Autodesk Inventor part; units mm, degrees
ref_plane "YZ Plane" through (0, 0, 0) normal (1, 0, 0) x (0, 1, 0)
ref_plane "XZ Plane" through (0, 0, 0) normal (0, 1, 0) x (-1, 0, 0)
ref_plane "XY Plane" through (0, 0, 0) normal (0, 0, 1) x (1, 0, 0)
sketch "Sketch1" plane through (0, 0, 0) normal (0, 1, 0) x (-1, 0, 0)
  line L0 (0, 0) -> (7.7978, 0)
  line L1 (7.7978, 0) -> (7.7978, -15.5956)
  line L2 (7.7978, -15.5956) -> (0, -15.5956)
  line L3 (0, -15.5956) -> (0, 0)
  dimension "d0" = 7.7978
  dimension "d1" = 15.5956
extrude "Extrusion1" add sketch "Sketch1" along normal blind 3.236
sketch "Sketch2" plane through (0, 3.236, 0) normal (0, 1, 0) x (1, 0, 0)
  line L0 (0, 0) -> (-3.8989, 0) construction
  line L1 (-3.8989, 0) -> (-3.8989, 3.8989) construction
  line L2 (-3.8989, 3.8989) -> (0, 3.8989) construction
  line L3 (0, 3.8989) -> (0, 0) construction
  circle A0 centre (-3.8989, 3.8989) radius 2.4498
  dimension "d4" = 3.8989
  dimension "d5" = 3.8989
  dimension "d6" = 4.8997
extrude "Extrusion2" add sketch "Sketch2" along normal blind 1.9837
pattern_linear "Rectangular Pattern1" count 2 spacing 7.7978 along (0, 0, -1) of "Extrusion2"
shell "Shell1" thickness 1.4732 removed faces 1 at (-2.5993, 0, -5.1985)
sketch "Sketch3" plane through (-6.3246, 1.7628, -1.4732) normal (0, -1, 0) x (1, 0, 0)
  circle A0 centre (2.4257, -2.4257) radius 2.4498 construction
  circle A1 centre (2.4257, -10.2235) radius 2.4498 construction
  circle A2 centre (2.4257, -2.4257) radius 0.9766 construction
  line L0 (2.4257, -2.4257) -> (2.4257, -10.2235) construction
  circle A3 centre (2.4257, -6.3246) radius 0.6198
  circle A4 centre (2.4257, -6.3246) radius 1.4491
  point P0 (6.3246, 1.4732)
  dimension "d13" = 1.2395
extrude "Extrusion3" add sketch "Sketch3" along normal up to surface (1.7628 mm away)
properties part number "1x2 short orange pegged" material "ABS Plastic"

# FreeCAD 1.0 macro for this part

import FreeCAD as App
import Part
import Sketcher

V = App.Vector
Q = App.Units.Quantity


def faces_at(feature, points):
    """Names of the faces that lie closest to the given points."""
    faces = feature.Shape.Faces
    near = lambda p: min(range(len(faces)), key=lambda i: faces[i].distToShape(Part.Vertex(*p))[0])
    return sorted({f"Face{near(p) + 1}" for p in points})

doc = App.newDocument("Part")
body = doc.addObject("PartDesign::Body", "Body")

sketch1 = body.newObject("Sketcher::SketchObject", "Sketch")
sketch1.AttachmentSupport = (doc.getObject("XZ_Plane"), [""])
sketch1.MapMode = "FlatFace"
sketch1.addGeometry([
    Part.LineSegment(V(-7.7978, 0, 0), V(0, 0, 0)),
    Part.LineSegment(V(0, 0, 0), V(0, -15.5956, 0)),
    Part.LineSegment(V(0, -15.5956, 0), V(-7.7978, -15.5956, 0)),
    Part.LineSegment(V(-7.7978, -15.5956, 0), V(-7.7978, 0, 0)),
], False)
sketch1.addConstraint([
    Sketcher.Constraint("Coincident", 0, 2, 1, 1),
    Sketcher.Constraint("Coincident", 1, 2, 2, 1),
    Sketcher.Constraint("Coincident", 2, 2, 3, 1),
    Sketcher.Constraint("Coincident", 3, 2, 0, 1),
    Sketcher.Constraint("Horizontal", 0),
    Sketcher.Constraint("Vertical", 1),
    Sketcher.Constraint("Horizontal", 2),
    Sketcher.Constraint("Vertical", 3),
    Sketcher.Constraint("Coincident", 0, 2, -1, 1),
    Sketcher.Constraint("DistanceX", 0, 1, 0, 2, Q("0.307 in")),
    Sketcher.Constraint("DistanceY", 1, 2, 1, 1, Q("0.614 in")),
])
pad1 = body.newObject("PartDesign::Pad", "Pad")
pad1.Profile = sketch1
pad1.Length = Q("0.1274016 in")
pad1.Reversed = True

sketch2 = body.newObject("Sketcher::SketchObject", "Sketch001")
sketch2.AttachmentSupport = (doc.getObject("XZ_Plane"), [""])
sketch2.MapMode = "FlatFace"
sketch2.AttachmentOffset = App.Placement(V(0, 0, -0.1274016 * 25.4), App.Rotation())
sketch2.addGeometry(Part.Circle(V(-3.8989, -3.8989, 0), V(0, 0, 1), 2.4498), False)
sketch2.addConstraint([
    Sketcher.Constraint("Diameter", 0, Q("0.1929 in")),
    Sketcher.Constraint("DistanceX", 0, 3, -1, 1, Q("0.1535 in")),
    Sketcher.Constraint("DistanceY", 0, 3, -1, 1, Q("0.1535 in")),
])
pad2 = body.newObject("PartDesign::Pad", "Pad001")
pad2.Profile = sketch2
pad2.Length = Q("0.0780984 in")
pad2.Reversed = True
doc.recompute()

linearpattern = body.newObject("PartDesign::LinearPattern", "LinearPattern")
linearpattern.Originals = [pad2]
linearpattern.Direction = (doc.getObject("Z_Axis"), [""])
linearpattern.Mode = "offset"
linearpattern.Offset = Q("0.307 in")
linearpattern.Occurrences = 2
linearpattern.Reversed = True
body.Tip = linearpattern
doc.recompute()

thickness = body.newObject("PartDesign::Thickness", "Thickness")
thickness.Base = (linearpattern, faces_at(linearpattern, [(-2.599, 0, -5.199)]))
thickness.Value = Q("0.058 in")
thickness.Reversed = True
thickness.Join = "Intersection"

sketch3 = body.newObject("Sketcher::SketchObject", "Sketch002")
sketch3.AttachmentSupport = (doc.getObject("XZ_Plane"), [""])
sketch3.MapMode = "FlatFace"
sketch3.AttachmentOffset = App.Placement(V(0, 0, -0.0694016 * 25.4), App.Rotation())
sketch3.addGeometry([
    Part.Circle(V(-3.8989, -7.7978, 0), V(0, 0, 1), 1.4491),
    Part.Circle(V(-3.8989, -7.7978, 0), V(0, 0, 1), 0.6198),
], False)
sketch3.addConstraint([
    Sketcher.Constraint("Coincident", 1, 3, 0, 3),
    Sketcher.Constraint("Diameter", 1, Q("0.0488 in")),
    Sketcher.Constraint("Diameter", 0, Q("0.1141 in")),
    Sketcher.Constraint("DistanceY", 0, 3, -1, 1, Q("0.307 in")),
    Sketcher.Constraint("DistanceX", 0, 3, -1, 1, Q("0.1535 in")),
])
pad3 = body.newObject("PartDesign::Pad", "Pad002")
pad3.Profile = sketch3
pad3.Length = Q("0.0694016 in")

doc.recompute()
